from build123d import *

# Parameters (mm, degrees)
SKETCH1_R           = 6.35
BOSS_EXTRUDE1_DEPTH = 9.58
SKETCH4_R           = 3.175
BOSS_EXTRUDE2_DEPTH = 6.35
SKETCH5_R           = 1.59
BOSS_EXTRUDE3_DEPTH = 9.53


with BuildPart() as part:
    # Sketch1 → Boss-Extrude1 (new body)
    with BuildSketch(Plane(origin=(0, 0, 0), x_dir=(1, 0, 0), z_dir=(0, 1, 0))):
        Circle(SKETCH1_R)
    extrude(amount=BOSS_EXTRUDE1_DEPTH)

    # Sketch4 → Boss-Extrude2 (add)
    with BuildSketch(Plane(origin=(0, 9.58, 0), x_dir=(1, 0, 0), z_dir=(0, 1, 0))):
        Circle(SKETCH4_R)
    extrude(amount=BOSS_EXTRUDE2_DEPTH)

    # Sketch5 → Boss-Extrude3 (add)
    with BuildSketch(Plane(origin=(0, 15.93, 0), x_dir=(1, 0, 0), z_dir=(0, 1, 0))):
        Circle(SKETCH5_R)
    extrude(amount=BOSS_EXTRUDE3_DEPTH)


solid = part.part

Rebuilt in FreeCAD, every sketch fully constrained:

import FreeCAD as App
import Part
import Sketcher

V = App.Vector
Q = App.Units.Quantity

doc = App.newDocument("Part")
body = doc.addObject("PartDesign::Body", "Body")

sketch1 = doc.addObject("Sketcher::SketchObject", "Sketch")
body.addObject(sketch1)
sketch1.AttachmentSupport = (doc.XZ_Plane, [""])
sketch1.MapMode = "FlatFace"
sketch1.addGeometry(Part.Circle(V(0, 0, 0), V(0, 0, 1), 6), False)
sketch1.addConstraint([
    Sketcher.Constraint("Coincident", 0, 3, -1, 1),
    Sketcher.Constraint("Diameter", 0, Q("0.5 in")),
])
pad1 = doc.addObject("PartDesign::Pad", "Pad")
body.addObject(pad1)
pad1.Profile = sketch1
pad1.Length = 9.58
pad1.Reversed = True

sketch2 = doc.addObject("Sketcher::SketchObject", "Sketch001")
body.addObject(sketch2)
sketch2.AttachmentSupport = (doc.XZ_Plane, [""])
sketch2.MapMode = "FlatFace"
sketch2.AttachmentOffset = App.Placement(V(0, 0, -9.58), App.Rotation())
sketch2.addGeometry(Part.Circle(V(0, 0, 0), V(0, 0, 1), 3.2), False)
sketch2.addConstraint([
    Sketcher.Constraint("Coincident", 0, 3, -1, 1),
    Sketcher.Constraint("Diameter", 0, Q("0.25 in")),
])
pad2 = doc.addObject("PartDesign::Pad", "Pad001")
body.addObject(pad2)
pad2.Profile = sketch2
pad2.Length = Q("0.25 in")
pad2.Reversed = True

sketch3 = doc.addObject("Sketcher::SketchObject", "Sketch002")
body.addObject(sketch3)
sketch3.AttachmentSupport = (doc.XZ_Plane, [""])
sketch3.MapMode = "FlatFace"
sketch3.AttachmentOffset = App.Placement(V(0, 0, -15.93), App.Rotation())
sketch3.addGeometry(Part.Circle(V(0, 0, 0), V(0, 0, 1), 1.6), False)
sketch3.addConstraint([
    Sketcher.Constraint("Coincident", 0, 3, -1, 1),
    Sketcher.Constraint("Diameter", 0, 3.18),
])
pad3 = doc.addObject("PartDesign::Pad", "Pad002")
body.addObject(pad3)
pad3.Profile = sketch3
pad3.Length = 9.53
pad3.Reversed = True

doc.recompute()
